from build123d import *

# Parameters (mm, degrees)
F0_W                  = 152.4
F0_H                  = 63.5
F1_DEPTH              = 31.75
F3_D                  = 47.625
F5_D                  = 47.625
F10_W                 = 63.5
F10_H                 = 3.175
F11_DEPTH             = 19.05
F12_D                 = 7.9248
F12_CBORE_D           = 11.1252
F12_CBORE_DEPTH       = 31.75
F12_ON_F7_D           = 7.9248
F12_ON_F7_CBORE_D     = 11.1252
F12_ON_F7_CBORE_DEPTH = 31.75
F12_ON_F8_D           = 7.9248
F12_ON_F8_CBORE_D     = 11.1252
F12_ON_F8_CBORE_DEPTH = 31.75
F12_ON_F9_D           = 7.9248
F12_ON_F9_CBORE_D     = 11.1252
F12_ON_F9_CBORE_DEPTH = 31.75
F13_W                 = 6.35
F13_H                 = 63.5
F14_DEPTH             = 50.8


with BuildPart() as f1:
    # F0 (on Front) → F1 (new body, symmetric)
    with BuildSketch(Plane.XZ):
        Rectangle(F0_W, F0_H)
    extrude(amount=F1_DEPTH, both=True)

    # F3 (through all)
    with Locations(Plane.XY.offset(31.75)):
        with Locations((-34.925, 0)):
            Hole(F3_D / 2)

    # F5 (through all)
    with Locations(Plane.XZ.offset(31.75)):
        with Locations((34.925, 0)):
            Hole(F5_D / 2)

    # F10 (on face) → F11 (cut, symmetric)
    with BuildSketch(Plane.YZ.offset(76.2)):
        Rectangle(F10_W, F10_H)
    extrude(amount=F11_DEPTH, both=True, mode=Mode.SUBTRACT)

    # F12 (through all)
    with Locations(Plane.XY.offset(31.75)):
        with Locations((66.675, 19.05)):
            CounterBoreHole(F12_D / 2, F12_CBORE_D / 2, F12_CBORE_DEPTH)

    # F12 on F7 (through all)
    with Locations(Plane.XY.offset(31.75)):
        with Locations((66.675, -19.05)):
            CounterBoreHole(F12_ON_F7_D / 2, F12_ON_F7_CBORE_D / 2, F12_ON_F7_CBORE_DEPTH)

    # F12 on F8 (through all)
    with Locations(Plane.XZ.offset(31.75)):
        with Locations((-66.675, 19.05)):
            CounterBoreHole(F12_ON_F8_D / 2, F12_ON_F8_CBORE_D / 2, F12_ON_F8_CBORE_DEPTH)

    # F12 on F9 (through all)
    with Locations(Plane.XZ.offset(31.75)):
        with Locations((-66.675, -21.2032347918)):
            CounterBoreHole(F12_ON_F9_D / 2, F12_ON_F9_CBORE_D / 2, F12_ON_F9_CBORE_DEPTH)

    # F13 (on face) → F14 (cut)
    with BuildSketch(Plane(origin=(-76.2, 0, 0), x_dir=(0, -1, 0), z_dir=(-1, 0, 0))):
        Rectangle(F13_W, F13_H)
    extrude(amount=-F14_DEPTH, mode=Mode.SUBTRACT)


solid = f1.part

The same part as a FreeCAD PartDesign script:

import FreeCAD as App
import Part
import Sketcher
from FreeCAD import Vector
Q = App.Units.Quantity


def add_polygon(sketch, points):
    """Adds a closed chain of lines whose ends are joined by coincident constraints."""
    first, n = sketch.GeometryCount, len(points)
    for a, b in zip(points, points[1:] + points[:1]):
        sketch.addGeometry(Part.LineSegment(App.Vector(*a, 0), App.Vector(*b, 0)), False)
    for i in range(n):
        sketch.addConstraint(Sketcher.Constraint("Coincident", first + i, 2, first + (i + 1) % n, 1))

doc = App.newDocument("Part")
body = doc.addObject("PartDesign::Body", "Body")

# Sketch on XZ plane
sketch1 = body.newObject("Sketcher::SketchObject", "Sketch")
sketch1.AttachmentSupport = (doc.getObject("XZ_Plane"), [""])
sketch1.MapMode = "FlatFace"
add_polygon(sketch1, [(-76, 32), (-76, -32), (76, -32), (76, 32)])  # lines 0-3
sketch1.addConstraint([
    Sketcher.Constraint("Vertical", 0),
    Sketcher.Constraint("Horizontal", 1),
    Sketcher.Constraint("Vertical", 2),
    Sketcher.Constraint("Horizontal", 3),
    Sketcher.Constraint("Symmetric", 0, 2, 2, 2, -1, 1),
    Sketcher.Constraint("DistanceX", 1, 1, 1, 2, Q("6 in")),
    Sketcher.Constraint("DistanceY", 0, 2, 0, 1, Q("2.5 in")),
])
pad1 = body.newObject("PartDesign::Pad", "Pad")
pad1.Profile = sketch1
pad1.Length = Q("2.5 in")
pad1.Midplane = True

# Sketch on XY plane
sketch2 = body.newObject("Sketcher::SketchObject", "Sketch001")
sketch2.AttachmentSupport = (doc.getObject("XY_Plane"), [""])
sketch2.MapMode = "FlatFace"
sketch2.AttachmentOffset = App.Placement(Vector(0, 0, 1.25 * 25.4), App.Rotation())
sketch2.addGeometry(Part.Circle(Vector(-35, 0, 0), Vector(0, 0, 1), 24), False)
sketch2.addConstraint([
    Sketcher.Constraint("PointOnObject", 0, 3, -1),
    Sketcher.Constraint("Diameter", 0, Q("1.875 in")),
    Sketcher.Constraint("DistanceX", 0, 3, -1, 1, Q("1.375 in")),
])
doc.recompute()
hole = body.newObject("PartDesign::Hole", "Hole")
hole.Profile = sketch2
hole.ThreadType = "None"
hole.Diameter = Q("1.875 in")
hole.DepthType = "ThroughAll"

# Sketch on XZ plane
sketch3 = body.newObject("Sketcher::SketchObject", "Sketch002")
sketch3.AttachmentSupport = (doc.getObject("XZ_Plane"), [""])
sketch3.MapMode = "FlatFace"
sketch3.AttachmentOffset = App.Placement(Vector(0, 0, 1.25 * 25.4), App.Rotation())
sketch3.addGeometry(Part.Circle(Vector(35, 0, 0), Vector(0, 0, 1), 24), False)
sketch3.addConstraint([
    Sketcher.Constraint("PointOnObject", 0, 3, -1),
    Sketcher.Constraint("Diameter", 0, Q("1.875 in")),
    Sketcher.Constraint("DistanceX", -1, 1, 0, 3, Q("1.375 in")),
])
doc.recompute()
hole2 = body.newObject("PartDesign::Hole", "Hole001")
hole2.Profile = sketch3
hole2.ThreadType = "None"
hole2.Diameter = Q("1.875 in")
hole2.DepthType = "ThroughAll"

# Sketch on YZ plane
sketch4 = body.newObject("Sketcher::SketchObject", "Sketch003")
sketch4.AttachmentSupport = (doc.getObject("YZ_Plane"), [""])
sketch4.MapMode = "FlatFace"
sketch4.AttachmentOffset = App.Placement(Vector(0, 0, 3 * 25.4), App.Rotation())
add_polygon(sketch4, [(-31.8, 1.6), (-31.8, -1.6), (31.8, -1.6), (31.8, 1.6)])  # lines 0-3
sketch4.addConstraint([
    Sketcher.Constraint("Vertical", 0),
    Sketcher.Constraint("Horizontal", 1),
    Sketcher.Constraint("Vertical", 2),
    Sketcher.Constraint("Horizontal", 3),
    Sketcher.Constraint("Symmetric", 0, 2, 2, 2, -1, 1),
    Sketcher.Constraint("DistanceX", 1, 1, 1, 2, Q("2.5 in")),
    Sketcher.Constraint("DistanceY", 0, 2, 0, 1, Q("0.125 in")),
])
pocket1 = body.newObject("PartDesign::Pocket", "Pocket")
pocket1.Profile = sketch4
pocket1.Length = Q("1.5 in")
pocket1.Midplane = True

# Sketch on XY plane
sketch5 = body.newObject("Sketcher::SketchObject", "Sketch004")
sketch5.AttachmentSupport = (doc.getObject("XY_Plane"), [""])
sketch5.MapMode = "FlatFace"
sketch5.AttachmentOffset = App.Placement(Vector(0, 0, 1.25 * 25.4), App.Rotation())
sketch5.addGeometry(Part.Circle(Vector(66.7, 19.1, 0), Vector(0, 0, 1), 4), False)
sketch5.addConstraint([
    Sketcher.Constraint("Diameter", 0, Q("0.312 in")),
    Sketcher.Constraint("DistanceY", -1, 1, 0, 3, Q("0.75 in")),
    Sketcher.Constraint("DistanceX", -1, 1, 0, 3, Q("2.625 in")),
])
doc.recompute()
hole3 = body.newObject("PartDesign::Hole", "Hole002")
hole3.Profile = sketch5
hole3.ThreadType = "None"
hole3.Diameter = Q("0.312 in")
hole3.DepthType = "ThroughAll"
hole3.HoleCutType = "Counterbore"
hole3.HoleCutDiameter = Q("0.438 in")
hole3.HoleCutDepth = Q("1.25 in")

# Sketch on XY plane
sketch6 = body.newObject("Sketcher::SketchObject", "Sketch005")
sketch6.AttachmentSupport = (doc.getObject("XY_Plane"), [""])
sketch6.MapMode = "FlatFace"
sketch6.AttachmentOffset = App.Placement(Vector(0, 0, 1.25 * 25.4), App.Rotation())
sketch6.addGeometry(Part.Circle(Vector(66.7, -19.1, 0), Vector(0, 0, 1), 4), False)
sketch6.addConstraint([
    Sketcher.Constraint("Diameter", 0, Q("0.312 in")),
    Sketcher.Constraint("DistanceY", 0, 3, -1, 1, Q("0.75 in")),
    Sketcher.Constraint("DistanceX", -1, 1, 0, 3, Q("2.625 in")),
])
doc.recompute()
hole4 = body.newObject("PartDesign::Hole", "Hole003")
hole4.Profile = sketch6
hole4.ThreadType = "None"
hole4.Diameter = Q("0.312 in")
hole4.DepthType = "ThroughAll"
hole4.HoleCutType = "Counterbore"
hole4.HoleCutDiameter = Q("0.438 in")
hole4.HoleCutDepth = Q("1.25 in")

# Sketch on XZ plane
sketch7 = body.newObject("Sketcher::SketchObject", "Sketch006")
sketch7.AttachmentSupport = (doc.getObject("XZ_Plane"), [""])
sketch7.MapMode = "FlatFace"
sketch7.AttachmentOffset = App.Placement(Vector(0, 0, 1.25 * 25.4), App.Rotation())
sketch7.addGeometry(Part.Circle(Vector(-66.7, 19.1, 0), Vector(0, 0, 1), 4), False)
sketch7.addConstraint([
    Sketcher.Constraint("Diameter", 0, Q("0.312 in")),
    Sketcher.Constraint("DistanceY", -1, 1, 0, 3, Q("0.75 in")),
    Sketcher.Constraint("DistanceX", 0, 3, -1, 1, Q("2.625 in")),
])
doc.recompute()
hole5 = body.newObject("PartDesign::Hole", "Hole004")
hole5.Profile = sketch7
hole5.ThreadType = "None"
hole5.Diameter = Q("0.312 in")
hole5.DepthType = "ThroughAll"
hole5.HoleCutType = "Counterbore"
hole5.HoleCutDiameter = Q("0.438 in")
hole5.HoleCutDepth = Q("1.25 in")

# Sketch on XZ plane
sketch8 = body.newObject("Sketcher::SketchObject", "Sketch007")
sketch8.AttachmentSupport = (doc.getObject("XZ_Plane"), [""])
sketch8.MapMode = "FlatFace"
sketch8.AttachmentOffset = App.Placement(Vector(0, 0, 1.25 * 25.4), App.Rotation())
sketch8.addGeometry(Part.Circle(Vector(-66.7, -21.2, 0), Vector(0, 0, 1), 4), False)
sketch8.addConstraint([
    Sketcher.Constraint("Diameter", 0, Q("0.312 in")),
    Sketcher.Constraint("DistanceX", 0, 3, -1, 1, Q("2.625 in")),
    Sketcher.Constraint("DistanceY", 0, 3, -1, 1, Q("21.203235 mm")),
])
doc.recompute()
hole6 = body.newObject("PartDesign::Hole", "Hole005")
hole6.Profile = sketch8
hole6.ThreadType = "None"
hole6.Diameter = Q("0.312 in")
hole6.DepthType = "ThroughAll"
hole6.HoleCutType = "Counterbore"
hole6.HoleCutDiameter = Q("0.438 in")
hole6.HoleCutDepth = Q("1.25 in")

# Sketch on YZ plane
sketch9 = body.newObject("Sketcher::SketchObject", "Sketch008")
sketch9.AttachmentSupport = (doc.getObject("YZ_Plane"), [""])
sketch9.MapMode = "FlatFace"
sketch9.AttachmentOffset = App.Placement(Vector(0, 0, -3 * 25.4), App.Rotation())
add_polygon(sketch9, [(3, 32), (3, -32), (-3, -32), (-3, 32)])  # lines 0-3
sketch9.addConstraint([
    Sketcher.Constraint("Vertical", 0),
    Sketcher.Constraint("Horizontal", 1),
    Sketcher.Constraint("Vertical", 2),
    Sketcher.Constraint("Horizontal", 3),
    Sketcher.Constraint("Symmetric", 0, 2, 2, 2, -1, 1),
    Sketcher.Constraint("DistanceY", 0, 2, 0, 1, Q("2.5 in")),
    Sketcher.Constraint("DistanceX", 1, 2, 1, 1, Q("0.25 in")),
])
pocket2 = body.newObject("PartDesign::Pocket", "Pocket001")
pocket2.Profile = sketch9
pocket2.Length = Q("2 in")
pocket2.Reversed = True

doc.recompute()
